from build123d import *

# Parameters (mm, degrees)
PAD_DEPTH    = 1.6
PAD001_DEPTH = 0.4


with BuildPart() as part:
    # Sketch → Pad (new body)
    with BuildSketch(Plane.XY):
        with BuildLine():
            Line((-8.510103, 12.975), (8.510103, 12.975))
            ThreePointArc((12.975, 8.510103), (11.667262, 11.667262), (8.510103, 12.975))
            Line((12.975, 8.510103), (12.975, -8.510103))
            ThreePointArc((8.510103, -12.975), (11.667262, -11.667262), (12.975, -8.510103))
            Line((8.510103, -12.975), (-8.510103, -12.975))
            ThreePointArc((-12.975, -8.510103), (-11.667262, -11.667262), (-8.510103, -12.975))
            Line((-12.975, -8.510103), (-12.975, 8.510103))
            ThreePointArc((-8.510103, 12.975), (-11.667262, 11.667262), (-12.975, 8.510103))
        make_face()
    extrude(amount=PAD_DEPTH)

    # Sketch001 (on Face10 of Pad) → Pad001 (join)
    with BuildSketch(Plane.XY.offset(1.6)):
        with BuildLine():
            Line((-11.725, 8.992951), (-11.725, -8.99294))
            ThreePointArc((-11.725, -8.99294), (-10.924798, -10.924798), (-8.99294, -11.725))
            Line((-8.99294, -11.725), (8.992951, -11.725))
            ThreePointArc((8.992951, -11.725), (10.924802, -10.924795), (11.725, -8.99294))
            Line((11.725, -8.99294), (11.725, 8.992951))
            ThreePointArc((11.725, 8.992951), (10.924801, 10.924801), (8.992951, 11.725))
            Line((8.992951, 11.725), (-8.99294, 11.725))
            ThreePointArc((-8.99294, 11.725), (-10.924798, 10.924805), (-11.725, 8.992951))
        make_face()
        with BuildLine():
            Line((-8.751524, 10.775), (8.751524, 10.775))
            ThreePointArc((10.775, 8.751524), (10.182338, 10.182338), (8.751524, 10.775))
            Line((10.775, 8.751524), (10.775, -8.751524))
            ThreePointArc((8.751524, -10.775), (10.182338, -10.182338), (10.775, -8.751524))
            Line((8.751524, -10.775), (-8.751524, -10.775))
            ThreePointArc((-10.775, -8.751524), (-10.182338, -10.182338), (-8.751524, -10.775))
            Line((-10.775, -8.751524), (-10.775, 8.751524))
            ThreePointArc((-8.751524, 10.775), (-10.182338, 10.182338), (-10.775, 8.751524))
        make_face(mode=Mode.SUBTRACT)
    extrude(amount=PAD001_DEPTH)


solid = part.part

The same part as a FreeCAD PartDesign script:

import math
import FreeCAD as App
import Part
import Sketcher

V = App.Vector
Q = App.Units.Quantity

doc = App.newDocument("Part")
body = doc.addObject("PartDesign::Body", "Body")

# Sketch on XY plane
sketch1 = doc.addObject("Sketcher::SketchObject", "Sketch")
body.addObject(sketch1)
sketch1.AttachmentSupport = (doc.XY_Plane, [""])
sketch1.MapMode = "FlatFace"
sketch1.addGeometry(Part.LineSegment(V(8.5, 13, 0), V(-8.5, 13, 0)), False)
sketch1.addGeometry(Part.ArcOfCircle(Part.Circle(V(-8.5, 8.5, 0), V(0, 0, 1), 4.5), math.radians(90), math.radians(180)), False)
sketch1.addGeometry(Part.LineSegment(V(-13, 8.5, 0), V(-13, -8.5, 0)), False)
sketch1.addGeometry(Part.ArcOfCircle(Part.Circle(V(-8.5, -8.5, 0), V(0, 0, 1), 4.5), math.radians(180), math.radians(270)), False)
sketch1.addGeometry(Part.LineSegment(V(-8.5, -13, 0), V(8.5, -13, 0)), False)
sketch1.addGeometry(Part.ArcOfCircle(Part.Circle(V(8.5, -8.5, 0), V(0, 0, 1), 4.5), math.radians(-90), math.radians(0)), False)
sketch1.addGeometry(Part.LineSegment(V(13, -8.5, 0), V(13, 8.5, 0)), False)
sketch1.addGeometry(Part.ArcOfCircle(Part.Circle(V(8.5, 8.5, 0), V(0, 0, 1), 4.5), math.radians(0), math.radians(90)), False)
sketch1.addConstraint(Sketcher.Constraint("Tangent", 0, 2, 1, 1))
sketch1.addConstraint(Sketcher.Constraint("Tangent", 1, 2, 2, 1))
sketch1.addConstraint(Sketcher.Constraint("Tangent", 2, 2, 3, 1))
sketch1.addConstraint(Sketcher.Constraint("Tangent", 3, 2, 4, 1))
sketch1.addConstraint(Sketcher.Constraint("Tangent", 4, 2, 5, 1))
sketch1.addConstraint(Sketcher.Constraint("Tangent", 5, 2, 6, 1))
sketch1.addConstraint(Sketcher.Constraint("Tangent", 6, 2, 7, 1))
sketch1.addConstraint(Sketcher.Constraint("Tangent", 7, 2, 0, 1))
sketch1.addConstraint(Sketcher.Constraint("Horizontal", 0))
sketch1.addConstraint(Sketcher.Constraint("Vertical", 2))
sketch1.addConstraint(Sketcher.Constraint("Horizontal", 4))
sketch1.addConstraint(Sketcher.Constraint("Vertical", 6))
sketch1.addConstraint(Sketcher.Constraint("Equal", 1, 3))
sketch1.addConstraint(Sketcher.Constraint("Equal", 3, 5))
sketch1.addConstraint(Sketcher.Constraint("Equal", 5, 7))
sketch1.addConstraint(Sketcher.Constraint("Symmetric", 1, 3, 5, 3, -1, 1))
sketch1.addConstraint(Sketcher.Constraint("Equal", 4, 2))
sketch1.addConstraint(Sketcher.Constraint("DistanceY", -1, 1, 0, 2, Q("12.975 mm")))
sketch1.addConstraint(Sketcher.Constraint("Radius", 1, Q("4.464897 mm")))
pad1 = doc.addObject("PartDesign::Pad", "Pad")
body.addObject(pad1)
pad1.Profile = sketch1
pad1.Length = 1.6

# Sketch on XY plane
sketch2 = doc.addObject("Sketcher::SketchObject", "Sketch001")
body.addObject(sketch2)
sketch2.AttachmentSupport = (doc.XY_Plane, [""])
sketch2.MapMode = "FlatFace"
sketch2.AttachmentOffset = App.Placement(V(0, 0, 1.6), App.Rotation())
sketch2.addGeometry(Part.LineSegment(V(-11.7, 9, 0), V(-11.7, -9, 0)), False)
sketch2.addGeometry(Part.ArcOfCircle(Part.Circle(V(-9, -9, 0), V(0, 0, 1), 2.7), math.radians(-180), math.radians(-90)), False)
sketch2.addGeometry(Part.LineSegment(V(-9, -11.7, 0), V(9, -11.7, 0)), False)
sketch2.addGeometry(Part.ArcOfCircle(Part.Circle(V(9, -9, 0), V(0, 0, 1), 2.7), math.radians(-90), math.radians(0)), False)
sketch2.addGeometry(Part.LineSegment(V(11.7, -9, 0), V(11.7, 9, 0)), False)
sketch2.addGeometry(Part.ArcOfCircle(Part.Circle(V(9, 9, 0), V(0, 0, 1), 2.7), math.radians(0), math.radians(90)), False)
sketch2.addGeometry(Part.LineSegment(V(9, 11.7, 0), V(-9, 11.7, 0)), False)
sketch2.addGeometry(Part.ArcOfCircle(Part.Circle(V(-9, 9, 0), V(0, 0, 1), 2.7), math.radians(90), math.radians(180)), False)
sketch2.addGeometry(Part.ArcOfCircle(Part.Circle(V(-8.8, 8.8, 0), V(0, 0, 1), 2), math.radians(90), math.radians(180)), False)
sketch2.addGeometry(Part.LineSegment(V(-8.8, 10.8, 0), V(8.8, 10.8, 0)), False)
sketch2.addGeometry(Part.ArcOfCircle(Part.Circle(V(8.8, 8.8, 0), V(0, 0, 1), 2), math.radians(0), math.radians(90)), False)
sketch2.addGeometry(Part.LineSegment(V(10.8, 8.8, 0), V(10.8, -8.8, 0)), False)
sketch2.addGeometry(Part.ArcOfCircle(Part.Circle(V(8.8, -8.8, 0), V(0, 0, 1), 2), math.radians(-90), math.radians(0)), False)
sketch2.addGeometry(Part.LineSegment(V(8.8, -10.8, 0), V(-8.8, -10.8, 0)), False)
sketch2.addGeometry(Part.ArcOfCircle(Part.Circle(V(-8.8, -8.8, 0), V(0, 0, 1), 2), math.radians(180), math.radians(270)), False)
sketch2.addGeometry(Part.LineSegment(V(-10.8, -8.8, 0), V(-10.8, 8.8, 0)), False)
sketch2.addConstraint(Sketcher.Constraint("Tangent", 0, 2, 1, 1))
sketch2.addConstraint(Sketcher.Constraint("Tangent", 1, 2, 2, 1))
sketch2.addConstraint(Sketcher.Constraint("Coincident", 2, 2, 3, 1))
sketch2.addConstraint(Sketcher.Constraint("Tangent", 3, 2, 4, 1))
sketch2.addConstraint(Sketcher.Constraint("Tangent", 4, 2, 5, 1))
sketch2.addConstraint(Sketcher.Constraint("Tangent", 5, 2, 6, 1))
sketch2.addConstraint(Sketcher.Constraint("Coincident", 6, 2, 7, 1))
sketch2.addConstraint(Sketcher.Constraint("Tangent", 7, 2, 0, 1))
sketch2.addConstraint(Sketcher.Constraint("Tangent", 8, 1, 9, 1))
sketch2.addConstraint(Sketcher.Constraint("Tangent", 9, 2, 10, 2))
sketch2.addConstraint(Sketcher.Constraint("Tangent", 10, 1, 11, 1))
sketch2.addConstraint(Sketcher.Constraint("Tangent", 11, 2, 12, 2))
sketch2.addConstraint(Sketcher.Constraint("Tangent", 12, 1, 13, 1))
sketch2.addConstraint(Sketcher.Constraint("Tangent", 13, 2, 14, 2))
sketch2.addConstraint(Sketcher.Constraint("Tangent", 14, 1, 15, 1))
sketch2.addConstraint(Sketcher.Constraint("Tangent", 15, 2, 8, 2))
sketch2.addConstraint(Sketcher.Constraint("Vertical", 0))
sketch2.addConstraint(Sketcher.Constraint("Horizontal", 2))
sketch2.addConstraint(Sketcher.Constraint("Vertical", 4))
sketch2.addConstraint(Sketcher.Constraint("Horizontal", 6))
sketch2.addConstraint(Sketcher.Constraint("Horizontal", 9))
sketch2.addConstraint(Sketcher.Constraint("Vertical", 11))
sketch2.addConstraint(Sketcher.Constraint("Horizontal", 13))
sketch2.addConstraint(Sketcher.Constraint("Vertical", 15))
sketch2.addConstraint(Sketcher.Constraint("Equal", 1, 3))
sketch2.addConstraint(Sketcher.Constraint("Equal", 5, 7))
sketch2.addConstraint(Sketcher.Constraint("Equal", 8, 10))
sketch2.addConstraint(Sketcher.Constraint("Equal", 10, 12))
sketch2.addConstraint(Sketcher.Constraint("Equal", 12, 14))
sketch2.addConstraint(Sketcher.Constraint("Symmetric", 8, 3, 12, 3, -1, 1))
sketch2.addConstraint(Sketcher.Constraint("Symmetric", 2, 2, 5, 2, -1))
sketch2.addConstraint(Sketcher.Constraint("Vertical", 1, 2, 6, 2))
sketch2.addConstraint(Sketcher.Constraint("Equal", 6, 0))
sketch2.addConstraint(Sketcher.Constraint("Equal", 13, 11))
sketch2.addConstraint(Sketcher.Constraint("Radius", 1, Q("2.732061 mm")))
sketch2.addConstraint(Sketcher.Constraint("Radius", 5, Q("2.73205 mm")))
sketch2.addConstraint(Sketcher.Constraint("DistanceY", 8, 1, 6, 2, Q("0.95 mm")))
sketch2.addConstraint(Sketcher.Constraint("DistanceX", 10, 1, 4, 2, Q("0.95 mm")))
sketch2.addConstraint(Sketcher.Constraint("DistanceX", 0, 2, -1, 1, Q("11.725 mm")))
sketch2.addConstraint(Sketcher.Constraint("Radius", 8, Q("2.023475 mm")))
pad2 = doc.addObject("PartDesign::Pad", "Pad001")
body.addObject(pad2)
pad2.Profile = sketch2
pad2.Length = 0.4

doc.recompute()
